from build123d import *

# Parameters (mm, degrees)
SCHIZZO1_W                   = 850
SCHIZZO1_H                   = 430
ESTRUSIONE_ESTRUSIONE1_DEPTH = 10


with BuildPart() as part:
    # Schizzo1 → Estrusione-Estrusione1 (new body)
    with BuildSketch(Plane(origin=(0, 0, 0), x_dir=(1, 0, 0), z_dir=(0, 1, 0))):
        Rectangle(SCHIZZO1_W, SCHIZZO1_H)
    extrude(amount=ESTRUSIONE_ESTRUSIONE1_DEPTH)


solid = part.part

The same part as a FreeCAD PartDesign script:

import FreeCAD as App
import Part
import Sketcher
from FreeCAD import Vector


def add_polygon(sketch, points):
    """Adds a closed chain of lines whose ends are joined by coincident constraints."""
    first, n = sketch.GeometryCount, len(points)
    for a, b in zip(points, points[1:] + points[:1]):
        sketch.addGeometry(Part.LineSegment(App.Vector(*a, 0), App.Vector(*b, 0)), False)
    for i in range(n):
        sketch.addConstraint(Sketcher.Constraint("Coincident", first + i, 2, first + (i + 1) % n, 1))

doc = App.newDocument("Part")
body = doc.addObject("PartDesign::Body", "Body")

# Sketch on XZ plane
sketch1 = body.newObject("Sketcher::SketchObject", "Sketch")
sketch1.AttachmentSupport = (doc.getObject("XZ_Plane"), [""])
sketch1.MapMode = "FlatFace"
add_polygon(sketch1, [(-425, -215), (-425, 215), (425, 215), (425, -215)])  # lines 0-3
sketch1.addConstraint(Sketcher.Constraint("Vertical", 0))
sketch1.addConstraint(Sketcher.Constraint("Horizontal", 1))
sketch1.addConstraint(Sketcher.Constraint("Vertical", 2))
sketch1.addConstraint(Sketcher.Constraint("Horizontal", 3))
sketch1.addConstraint(Sketcher.Constraint("Symmetric", 0, 2, 2, 2, -1, 1))
sketch1.addConstraint(Sketcher.Constraint("DistanceX", 1, 1, 1, 2, 850.0))
sketch1.addConstraint(Sketcher.Constraint("DistanceY", 0, 1, 0, 2, 430.0))
pad1 = body.newObject("PartDesign::Pad", "Pad")
pad1.Profile = sketch1
pad1.Length = 10
pad1.Reversed = True

doc.recompute()
